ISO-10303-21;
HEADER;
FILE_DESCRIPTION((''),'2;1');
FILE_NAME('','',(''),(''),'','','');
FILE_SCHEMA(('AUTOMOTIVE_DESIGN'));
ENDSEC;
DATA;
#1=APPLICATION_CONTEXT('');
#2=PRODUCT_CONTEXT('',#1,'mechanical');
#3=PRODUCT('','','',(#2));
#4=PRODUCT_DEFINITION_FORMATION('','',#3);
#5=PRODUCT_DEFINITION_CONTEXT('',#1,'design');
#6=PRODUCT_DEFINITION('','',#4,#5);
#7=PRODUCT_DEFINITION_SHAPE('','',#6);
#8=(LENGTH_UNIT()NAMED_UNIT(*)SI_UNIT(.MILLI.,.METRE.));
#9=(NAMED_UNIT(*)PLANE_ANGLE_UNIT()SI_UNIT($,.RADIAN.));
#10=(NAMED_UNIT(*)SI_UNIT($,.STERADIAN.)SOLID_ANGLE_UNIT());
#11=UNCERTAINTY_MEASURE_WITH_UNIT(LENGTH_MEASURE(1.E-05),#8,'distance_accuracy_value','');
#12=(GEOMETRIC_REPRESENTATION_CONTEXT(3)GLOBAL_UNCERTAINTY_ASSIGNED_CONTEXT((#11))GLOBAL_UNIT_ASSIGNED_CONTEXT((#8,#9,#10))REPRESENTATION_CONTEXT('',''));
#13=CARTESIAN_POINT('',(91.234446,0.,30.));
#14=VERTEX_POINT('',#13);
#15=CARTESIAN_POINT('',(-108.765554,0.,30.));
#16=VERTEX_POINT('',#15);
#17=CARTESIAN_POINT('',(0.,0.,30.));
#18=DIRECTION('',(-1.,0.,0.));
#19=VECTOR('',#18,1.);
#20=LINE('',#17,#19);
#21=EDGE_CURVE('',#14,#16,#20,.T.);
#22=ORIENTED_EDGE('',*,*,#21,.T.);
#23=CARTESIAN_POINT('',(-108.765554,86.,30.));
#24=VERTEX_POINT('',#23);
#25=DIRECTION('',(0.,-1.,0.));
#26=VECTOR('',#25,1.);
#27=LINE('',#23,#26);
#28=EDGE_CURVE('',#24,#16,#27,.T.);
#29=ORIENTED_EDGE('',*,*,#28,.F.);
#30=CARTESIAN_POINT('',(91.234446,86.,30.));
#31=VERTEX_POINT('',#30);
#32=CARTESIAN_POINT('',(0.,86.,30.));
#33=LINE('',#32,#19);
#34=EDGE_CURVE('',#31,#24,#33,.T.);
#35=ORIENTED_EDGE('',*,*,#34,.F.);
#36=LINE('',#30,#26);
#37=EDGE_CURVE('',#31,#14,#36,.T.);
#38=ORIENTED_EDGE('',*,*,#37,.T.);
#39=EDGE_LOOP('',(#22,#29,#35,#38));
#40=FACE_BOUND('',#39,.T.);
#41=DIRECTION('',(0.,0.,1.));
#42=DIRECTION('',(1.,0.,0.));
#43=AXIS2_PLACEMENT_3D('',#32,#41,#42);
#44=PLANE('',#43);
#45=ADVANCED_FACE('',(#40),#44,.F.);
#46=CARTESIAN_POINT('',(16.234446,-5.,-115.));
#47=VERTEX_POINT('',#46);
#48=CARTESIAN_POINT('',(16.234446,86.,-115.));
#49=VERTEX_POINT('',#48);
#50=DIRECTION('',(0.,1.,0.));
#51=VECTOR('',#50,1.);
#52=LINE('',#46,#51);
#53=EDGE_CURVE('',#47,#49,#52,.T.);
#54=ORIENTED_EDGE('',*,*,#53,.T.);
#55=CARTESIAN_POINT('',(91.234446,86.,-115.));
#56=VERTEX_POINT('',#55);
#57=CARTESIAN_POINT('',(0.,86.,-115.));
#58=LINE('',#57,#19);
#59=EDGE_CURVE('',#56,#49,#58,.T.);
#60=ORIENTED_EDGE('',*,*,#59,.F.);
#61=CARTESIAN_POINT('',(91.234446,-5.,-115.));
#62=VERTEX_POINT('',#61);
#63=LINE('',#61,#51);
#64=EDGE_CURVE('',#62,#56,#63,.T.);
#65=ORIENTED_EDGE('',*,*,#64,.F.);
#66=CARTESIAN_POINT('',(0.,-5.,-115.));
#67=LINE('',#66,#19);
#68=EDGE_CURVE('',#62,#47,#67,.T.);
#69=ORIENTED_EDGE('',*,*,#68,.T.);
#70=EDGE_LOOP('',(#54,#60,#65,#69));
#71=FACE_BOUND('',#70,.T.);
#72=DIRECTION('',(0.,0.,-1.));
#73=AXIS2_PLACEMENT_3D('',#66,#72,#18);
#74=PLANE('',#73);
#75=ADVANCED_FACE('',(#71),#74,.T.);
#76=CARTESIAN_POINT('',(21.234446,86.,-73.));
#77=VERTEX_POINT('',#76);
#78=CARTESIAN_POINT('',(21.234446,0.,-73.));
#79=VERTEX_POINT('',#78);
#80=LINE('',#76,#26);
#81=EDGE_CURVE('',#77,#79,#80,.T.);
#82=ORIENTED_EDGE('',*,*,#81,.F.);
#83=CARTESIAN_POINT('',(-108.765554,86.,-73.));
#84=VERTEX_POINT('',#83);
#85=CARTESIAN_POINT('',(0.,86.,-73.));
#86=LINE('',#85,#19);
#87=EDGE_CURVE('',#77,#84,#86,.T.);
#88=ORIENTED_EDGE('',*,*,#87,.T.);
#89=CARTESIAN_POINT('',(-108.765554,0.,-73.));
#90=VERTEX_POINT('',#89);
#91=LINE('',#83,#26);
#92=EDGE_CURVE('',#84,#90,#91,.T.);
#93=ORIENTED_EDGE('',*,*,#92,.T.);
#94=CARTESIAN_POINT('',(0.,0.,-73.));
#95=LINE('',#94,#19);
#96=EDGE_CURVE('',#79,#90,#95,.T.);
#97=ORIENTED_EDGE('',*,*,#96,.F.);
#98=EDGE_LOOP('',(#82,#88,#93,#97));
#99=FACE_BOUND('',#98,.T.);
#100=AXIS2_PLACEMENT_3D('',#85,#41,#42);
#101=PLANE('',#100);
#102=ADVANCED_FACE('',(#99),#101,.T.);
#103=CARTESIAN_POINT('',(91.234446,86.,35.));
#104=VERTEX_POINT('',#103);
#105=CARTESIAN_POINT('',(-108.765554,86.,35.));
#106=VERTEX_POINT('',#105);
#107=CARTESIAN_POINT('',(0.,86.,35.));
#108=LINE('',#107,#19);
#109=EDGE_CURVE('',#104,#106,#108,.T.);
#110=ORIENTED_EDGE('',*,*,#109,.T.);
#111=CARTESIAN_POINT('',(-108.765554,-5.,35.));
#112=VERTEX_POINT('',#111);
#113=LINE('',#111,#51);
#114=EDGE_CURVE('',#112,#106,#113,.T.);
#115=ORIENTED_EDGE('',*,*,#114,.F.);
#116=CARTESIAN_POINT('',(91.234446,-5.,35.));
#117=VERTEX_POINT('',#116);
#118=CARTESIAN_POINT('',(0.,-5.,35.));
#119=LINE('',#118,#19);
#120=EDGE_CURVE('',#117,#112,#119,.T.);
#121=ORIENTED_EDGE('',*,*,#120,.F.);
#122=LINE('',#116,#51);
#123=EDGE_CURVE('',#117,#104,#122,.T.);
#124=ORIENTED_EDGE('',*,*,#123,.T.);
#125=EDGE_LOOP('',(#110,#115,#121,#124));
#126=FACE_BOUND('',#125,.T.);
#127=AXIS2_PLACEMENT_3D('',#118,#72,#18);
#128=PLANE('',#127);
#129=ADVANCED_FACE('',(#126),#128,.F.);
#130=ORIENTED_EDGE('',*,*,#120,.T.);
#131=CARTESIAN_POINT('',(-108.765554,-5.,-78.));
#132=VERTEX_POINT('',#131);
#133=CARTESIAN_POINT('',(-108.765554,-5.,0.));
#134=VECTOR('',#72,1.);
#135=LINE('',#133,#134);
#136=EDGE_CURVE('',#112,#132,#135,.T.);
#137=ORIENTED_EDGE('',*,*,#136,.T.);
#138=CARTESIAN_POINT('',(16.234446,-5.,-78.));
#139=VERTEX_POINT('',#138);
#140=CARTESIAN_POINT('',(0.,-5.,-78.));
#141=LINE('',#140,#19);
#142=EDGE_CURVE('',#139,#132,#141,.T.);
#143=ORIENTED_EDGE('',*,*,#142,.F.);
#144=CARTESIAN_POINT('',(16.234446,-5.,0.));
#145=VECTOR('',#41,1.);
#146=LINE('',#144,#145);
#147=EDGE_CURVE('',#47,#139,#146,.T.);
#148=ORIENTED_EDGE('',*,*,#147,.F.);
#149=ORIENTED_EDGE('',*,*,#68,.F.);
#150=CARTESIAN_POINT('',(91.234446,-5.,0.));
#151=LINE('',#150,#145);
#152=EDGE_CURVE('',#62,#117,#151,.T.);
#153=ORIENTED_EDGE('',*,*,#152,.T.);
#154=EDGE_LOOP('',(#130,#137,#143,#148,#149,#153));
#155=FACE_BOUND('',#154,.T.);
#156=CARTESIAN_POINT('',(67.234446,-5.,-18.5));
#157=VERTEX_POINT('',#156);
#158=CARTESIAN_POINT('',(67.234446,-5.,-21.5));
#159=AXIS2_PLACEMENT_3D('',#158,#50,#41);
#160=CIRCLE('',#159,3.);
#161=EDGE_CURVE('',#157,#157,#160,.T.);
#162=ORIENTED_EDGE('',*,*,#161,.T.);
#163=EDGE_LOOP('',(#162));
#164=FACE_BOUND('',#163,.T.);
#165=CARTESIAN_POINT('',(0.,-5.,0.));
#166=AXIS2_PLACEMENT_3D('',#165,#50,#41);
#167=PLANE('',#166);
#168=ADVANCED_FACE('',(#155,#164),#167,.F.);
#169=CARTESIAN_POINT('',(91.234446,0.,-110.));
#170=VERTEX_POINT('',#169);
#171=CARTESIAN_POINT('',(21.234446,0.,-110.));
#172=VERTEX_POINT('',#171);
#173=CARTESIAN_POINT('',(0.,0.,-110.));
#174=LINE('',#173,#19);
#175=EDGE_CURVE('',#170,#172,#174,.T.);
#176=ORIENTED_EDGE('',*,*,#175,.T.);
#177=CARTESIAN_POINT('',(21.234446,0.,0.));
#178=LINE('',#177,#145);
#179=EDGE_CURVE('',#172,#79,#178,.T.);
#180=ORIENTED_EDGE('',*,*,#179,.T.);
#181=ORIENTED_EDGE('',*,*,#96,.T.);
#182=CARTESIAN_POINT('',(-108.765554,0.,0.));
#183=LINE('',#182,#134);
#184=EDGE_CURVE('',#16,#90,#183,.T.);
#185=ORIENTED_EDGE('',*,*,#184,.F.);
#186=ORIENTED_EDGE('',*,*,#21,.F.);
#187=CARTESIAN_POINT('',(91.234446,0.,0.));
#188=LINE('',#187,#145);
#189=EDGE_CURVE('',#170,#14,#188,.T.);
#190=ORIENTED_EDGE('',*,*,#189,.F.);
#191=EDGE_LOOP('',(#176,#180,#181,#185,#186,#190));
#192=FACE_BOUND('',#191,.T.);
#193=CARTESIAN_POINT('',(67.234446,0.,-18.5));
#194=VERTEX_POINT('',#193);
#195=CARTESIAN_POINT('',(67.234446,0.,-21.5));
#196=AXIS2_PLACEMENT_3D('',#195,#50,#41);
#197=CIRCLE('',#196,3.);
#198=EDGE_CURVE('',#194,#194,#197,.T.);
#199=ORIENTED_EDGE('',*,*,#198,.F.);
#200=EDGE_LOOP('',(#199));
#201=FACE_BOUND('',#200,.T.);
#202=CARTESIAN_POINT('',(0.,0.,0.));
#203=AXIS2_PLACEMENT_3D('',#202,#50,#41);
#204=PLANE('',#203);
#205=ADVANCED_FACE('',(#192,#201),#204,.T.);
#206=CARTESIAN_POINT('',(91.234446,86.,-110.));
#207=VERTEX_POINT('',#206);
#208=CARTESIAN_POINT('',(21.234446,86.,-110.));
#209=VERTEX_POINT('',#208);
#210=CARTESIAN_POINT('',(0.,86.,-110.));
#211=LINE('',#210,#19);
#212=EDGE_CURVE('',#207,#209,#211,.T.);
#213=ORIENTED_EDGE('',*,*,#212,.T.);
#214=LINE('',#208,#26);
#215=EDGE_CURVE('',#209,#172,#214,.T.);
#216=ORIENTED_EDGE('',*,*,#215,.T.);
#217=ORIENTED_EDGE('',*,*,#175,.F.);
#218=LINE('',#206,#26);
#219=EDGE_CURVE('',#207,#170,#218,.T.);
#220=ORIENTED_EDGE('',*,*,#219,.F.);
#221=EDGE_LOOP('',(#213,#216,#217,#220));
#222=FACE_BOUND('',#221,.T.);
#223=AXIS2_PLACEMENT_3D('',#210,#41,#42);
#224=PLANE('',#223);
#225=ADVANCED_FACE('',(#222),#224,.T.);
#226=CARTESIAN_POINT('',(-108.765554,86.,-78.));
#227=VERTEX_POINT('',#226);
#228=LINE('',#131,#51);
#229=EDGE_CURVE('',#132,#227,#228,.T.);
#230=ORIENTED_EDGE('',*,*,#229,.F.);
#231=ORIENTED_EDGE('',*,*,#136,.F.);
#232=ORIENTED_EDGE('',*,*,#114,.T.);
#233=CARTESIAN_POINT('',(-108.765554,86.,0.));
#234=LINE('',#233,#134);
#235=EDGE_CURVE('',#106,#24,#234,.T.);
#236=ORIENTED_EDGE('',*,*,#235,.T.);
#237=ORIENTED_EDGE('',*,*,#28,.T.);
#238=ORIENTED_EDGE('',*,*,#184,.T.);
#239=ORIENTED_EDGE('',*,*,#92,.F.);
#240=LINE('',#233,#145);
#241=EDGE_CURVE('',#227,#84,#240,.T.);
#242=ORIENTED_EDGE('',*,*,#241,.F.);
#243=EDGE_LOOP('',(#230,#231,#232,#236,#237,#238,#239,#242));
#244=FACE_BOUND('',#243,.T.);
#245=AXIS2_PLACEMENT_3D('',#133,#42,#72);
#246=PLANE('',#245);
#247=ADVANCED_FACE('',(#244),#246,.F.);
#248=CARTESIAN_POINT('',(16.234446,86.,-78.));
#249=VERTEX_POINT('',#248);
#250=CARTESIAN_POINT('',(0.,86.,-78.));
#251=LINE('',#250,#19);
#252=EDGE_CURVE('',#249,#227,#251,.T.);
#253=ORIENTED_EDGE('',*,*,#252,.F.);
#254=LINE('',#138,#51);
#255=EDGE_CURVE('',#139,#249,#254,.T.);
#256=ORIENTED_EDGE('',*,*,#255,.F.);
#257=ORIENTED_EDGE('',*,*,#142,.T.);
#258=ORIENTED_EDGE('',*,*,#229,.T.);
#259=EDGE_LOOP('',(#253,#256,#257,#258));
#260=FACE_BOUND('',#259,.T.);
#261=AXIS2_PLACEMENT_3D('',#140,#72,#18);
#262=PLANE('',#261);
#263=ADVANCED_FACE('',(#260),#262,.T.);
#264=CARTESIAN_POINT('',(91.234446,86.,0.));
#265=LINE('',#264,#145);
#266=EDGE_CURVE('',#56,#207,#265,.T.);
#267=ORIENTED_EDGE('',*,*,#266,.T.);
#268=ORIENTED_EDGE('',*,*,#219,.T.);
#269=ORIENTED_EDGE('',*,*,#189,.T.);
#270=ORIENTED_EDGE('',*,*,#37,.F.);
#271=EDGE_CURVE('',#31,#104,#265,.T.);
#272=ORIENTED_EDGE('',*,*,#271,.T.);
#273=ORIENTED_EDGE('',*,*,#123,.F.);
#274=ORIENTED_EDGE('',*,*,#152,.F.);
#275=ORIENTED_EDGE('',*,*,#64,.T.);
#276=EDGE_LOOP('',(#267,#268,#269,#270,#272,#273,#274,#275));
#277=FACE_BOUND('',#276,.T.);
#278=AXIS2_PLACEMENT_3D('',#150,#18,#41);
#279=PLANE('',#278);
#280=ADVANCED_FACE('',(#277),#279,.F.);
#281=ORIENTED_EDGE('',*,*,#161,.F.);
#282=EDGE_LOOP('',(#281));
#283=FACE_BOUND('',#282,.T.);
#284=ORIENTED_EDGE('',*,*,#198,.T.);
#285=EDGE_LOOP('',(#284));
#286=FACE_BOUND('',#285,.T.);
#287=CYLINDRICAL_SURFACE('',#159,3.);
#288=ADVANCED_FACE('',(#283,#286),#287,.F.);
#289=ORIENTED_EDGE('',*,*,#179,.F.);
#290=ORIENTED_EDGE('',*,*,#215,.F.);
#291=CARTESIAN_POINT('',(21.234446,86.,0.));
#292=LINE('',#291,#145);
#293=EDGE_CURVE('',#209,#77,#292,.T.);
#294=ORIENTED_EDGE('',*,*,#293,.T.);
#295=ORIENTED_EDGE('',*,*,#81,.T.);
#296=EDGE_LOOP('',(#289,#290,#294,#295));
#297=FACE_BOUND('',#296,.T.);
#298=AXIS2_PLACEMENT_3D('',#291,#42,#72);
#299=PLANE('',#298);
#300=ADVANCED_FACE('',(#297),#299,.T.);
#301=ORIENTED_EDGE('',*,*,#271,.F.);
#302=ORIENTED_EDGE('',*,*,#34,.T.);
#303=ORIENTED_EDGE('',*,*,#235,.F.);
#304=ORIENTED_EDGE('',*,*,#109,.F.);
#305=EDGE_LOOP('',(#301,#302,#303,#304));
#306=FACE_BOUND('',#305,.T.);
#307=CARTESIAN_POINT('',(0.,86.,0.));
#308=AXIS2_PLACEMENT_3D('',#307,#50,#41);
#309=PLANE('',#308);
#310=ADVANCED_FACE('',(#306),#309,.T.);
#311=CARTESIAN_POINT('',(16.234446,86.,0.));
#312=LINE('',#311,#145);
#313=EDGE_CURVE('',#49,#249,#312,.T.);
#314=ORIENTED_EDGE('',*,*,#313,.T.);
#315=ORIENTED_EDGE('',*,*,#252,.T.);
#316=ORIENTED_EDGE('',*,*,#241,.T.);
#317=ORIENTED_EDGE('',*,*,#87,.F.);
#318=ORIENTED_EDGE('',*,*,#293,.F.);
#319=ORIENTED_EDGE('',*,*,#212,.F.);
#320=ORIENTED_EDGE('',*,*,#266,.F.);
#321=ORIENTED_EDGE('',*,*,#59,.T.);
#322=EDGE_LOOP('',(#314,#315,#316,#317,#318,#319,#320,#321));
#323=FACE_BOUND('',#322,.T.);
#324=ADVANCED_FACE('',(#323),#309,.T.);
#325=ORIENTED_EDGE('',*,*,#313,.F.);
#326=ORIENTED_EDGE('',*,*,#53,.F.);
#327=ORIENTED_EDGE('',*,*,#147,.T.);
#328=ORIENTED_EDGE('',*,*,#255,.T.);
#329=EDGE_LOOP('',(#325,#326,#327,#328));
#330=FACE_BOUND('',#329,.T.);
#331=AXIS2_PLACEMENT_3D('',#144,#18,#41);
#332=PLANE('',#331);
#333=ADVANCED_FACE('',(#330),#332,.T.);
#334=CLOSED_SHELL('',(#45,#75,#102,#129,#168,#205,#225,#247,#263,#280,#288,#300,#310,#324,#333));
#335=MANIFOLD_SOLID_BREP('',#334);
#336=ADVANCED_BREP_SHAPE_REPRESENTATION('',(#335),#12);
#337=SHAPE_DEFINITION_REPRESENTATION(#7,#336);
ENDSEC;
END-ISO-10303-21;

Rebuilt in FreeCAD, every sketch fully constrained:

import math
import FreeCAD as App
import Part
import Sketcher
from FreeCAD import Vector


def add_polygon(sketch, points):
    """Adds a closed chain of lines whose ends are joined by coincident constraints."""
    first, n = sketch.GeometryCount, len(points)
    for a, b in zip(points, points[1:] + points[:1]):
        sketch.addGeometry(Part.LineSegment(App.Vector(*a, 0), App.Vector(*b, 0)), False)
    for i in range(n):
        sketch.addConstraint(Sketcher.Constraint("Coincident", first + i, 2, first + (i + 1) % n, 1))

doc = App.newDocument("Part")
body = doc.addObject("PartDesign::Body", "Body")

sketch1 = body.newObject("Sketcher::SketchObject", "Sketch")
sketch1.AttachmentSupport = (doc.getObject("XZ_Plane"), [""])
sketch1.MapMode = "FlatFace"
add_polygon(sketch1, [(-108.765554, 35), (91.234446, 35), (91.234446, -115), (16.234446, -115), (16.234446, -78), (-108.765554, -78)])
sketch1.addGeometry(Part.ArcOfCircle(Part.Circle(Vector(67.234446, -21.5, 0), Vector(0, 0, 1), 3), math.radians(0), math.radians(270)), False)
sketch1.addGeometry(Part.ArcOfCircle(Part.Circle(Vector(67.234446, -21.5, 0), Vector(0, 0, 1), 3), math.radians(-90), math.radians(0)), False)
sketch1.addConstraint(Sketcher.Constraint("Tangent", 6, 1, 7, 2))
sketch1.addConstraint(Sketcher.Constraint("Coincident", 7, 1, 6, 2))
sketch1.addConstraint(Sketcher.Constraint("Horizontal", 0))
sketch1.addConstraint(Sketcher.Constraint("Vertical", 1))
sketch1.addConstraint(Sketcher.Constraint("Horizontal", 2))
sketch1.addConstraint(Sketcher.Constraint("Vertical", 3))
sketch1.addConstraint(Sketcher.Constraint("Horizontal", 4))
sketch1.addConstraint(Sketcher.Constraint("Vertical", 5))
sketch1.addConstraint(Sketcher.Constraint("Horizontal", 7, 3, 6, 1))
sketch1.addConstraint(Sketcher.Constraint("Vertical", 6, 3, 7, 1))
sketch1.addConstraint(Sketcher.Constraint("Radius", 6, 3.0))
sketch1.addConstraint(Sketcher.Constraint("DistanceX", 0, 1, 0, 2, 200.0))
sketch1.addConstraint(Sketcher.Constraint("DistanceX", 2, 2, 2, 1, 75.0))
sketch1.addConstraint(Sketcher.Constraint("DistanceY", 1, 2, 1, 1, 150.0))
sketch1.addConstraint(Sketcher.Constraint("DistanceY", 3, 1, 3, 2, 37.0))
sketch1.addConstraint(Sketcher.Constraint("DistanceY", -1, 1, 0, 2, 35.0))
sketch1.addConstraint(Sketcher.Constraint("DistanceX", 6, 3, 0, 2, 24.0))
sketch1.addConstraint(Sketcher.Constraint("DistanceY", 6, 3, -1, 1, 21.5))
sketch1.addConstraint(Sketcher.Constraint("DistanceX", -1, 1, 6, 3, 67.234446))
pad1 = body.newObject("PartDesign::Pad", "Pad")
pad1.Profile = sketch1
pad1.Length = 5

sketch2 = body.newObject("Sketcher::SketchObject", "Sketch001")
sketch2.AttachmentSupport = (doc.getObject("XZ_Plane"), [""])
sketch2.MapMode = "FlatFace"
add_polygon(sketch2, [(-108.765554, -78), (-108.765554, -73), (21.234446, -73), (21.234446, -110), (91.234446, -110), (91.234446, -115), (16.234446, -115), (16.234446, -78)])
add_polygon(sketch2, [(-108.765554, 30), (-108.765554, 35), (91.234446, 35), (91.234446, 30)])
sketch2.addConstraint(Sketcher.Constraint("Vertical", 0))
sketch2.addConstraint(Sketcher.Constraint("Horizontal", 1))
sketch2.addConstraint(Sketcher.Constraint("Vertical", 2))
sketch2.addConstraint(Sketcher.Constraint("Horizontal", 3))
sketch2.addConstraint(Sketcher.Constraint("Vertical", 4))
sketch2.addConstraint(Sketcher.Constraint("Horizontal", 5))
sketch2.addConstraint(Sketcher.Constraint("Vertical", 6))
sketch2.addConstraint(Sketcher.Constraint("Horizontal", 7))
sketch2.addConstraint(Sketcher.Constraint("Vertical", 8))
sketch2.addConstraint(Sketcher.Constraint("Horizontal", 9))
sketch2.addConstraint(Sketcher.Constraint("Vertical", 10))
sketch2.addConstraint(Sketcher.Constraint("Horizontal", 11))
sketch2.addConstraint(Sketcher.Constraint("Vertical", 7, 2, 8, 2))
sketch2.addConstraint(Sketcher.Constraint("Vertical", 4, 2, 9, 2))
sketch2.addConstraint(Sketcher.Constraint("Equal", 0, 4))
sketch2.addConstraint(Sketcher.Constraint("Equal", 4, 8))
sketch2.addConstraint(Sketcher.Constraint("DistanceX", 1, 1, 1, 2, 130.0))
sketch2.addConstraint(Sketcher.Constraint("DistanceX", 3, 1, 3, 2, 70.0))
sketch2.addConstraint(Sketcher.Constraint("DistanceX", 5, 2, 5, 1, 75.0))
sketch2.addConstraint(Sketcher.Constraint("DistanceY", 0, 1, 0, 2, 5.0))
sketch2.addConstraint(Sketcher.Constraint("DistanceY", 2, 2, 2, 1, 37.0))
sketch2.addConstraint(Sketcher.Constraint("DistanceY", 0, 2, -1, 1, 73.0))
sketch2.addConstraint(Sketcher.Constraint("DistanceY", -1, 1, 8, 2, 35.0))
sketch2.addConstraint(Sketcher.Constraint("DistanceX", 0, 2, -1, 1, 108.765554))
pad2 = body.newObject("PartDesign::Pad", "Pad001")
pad2.Profile = sketch2
pad2.Length = 86
pad2.Reversed = True

doc.recompute()
